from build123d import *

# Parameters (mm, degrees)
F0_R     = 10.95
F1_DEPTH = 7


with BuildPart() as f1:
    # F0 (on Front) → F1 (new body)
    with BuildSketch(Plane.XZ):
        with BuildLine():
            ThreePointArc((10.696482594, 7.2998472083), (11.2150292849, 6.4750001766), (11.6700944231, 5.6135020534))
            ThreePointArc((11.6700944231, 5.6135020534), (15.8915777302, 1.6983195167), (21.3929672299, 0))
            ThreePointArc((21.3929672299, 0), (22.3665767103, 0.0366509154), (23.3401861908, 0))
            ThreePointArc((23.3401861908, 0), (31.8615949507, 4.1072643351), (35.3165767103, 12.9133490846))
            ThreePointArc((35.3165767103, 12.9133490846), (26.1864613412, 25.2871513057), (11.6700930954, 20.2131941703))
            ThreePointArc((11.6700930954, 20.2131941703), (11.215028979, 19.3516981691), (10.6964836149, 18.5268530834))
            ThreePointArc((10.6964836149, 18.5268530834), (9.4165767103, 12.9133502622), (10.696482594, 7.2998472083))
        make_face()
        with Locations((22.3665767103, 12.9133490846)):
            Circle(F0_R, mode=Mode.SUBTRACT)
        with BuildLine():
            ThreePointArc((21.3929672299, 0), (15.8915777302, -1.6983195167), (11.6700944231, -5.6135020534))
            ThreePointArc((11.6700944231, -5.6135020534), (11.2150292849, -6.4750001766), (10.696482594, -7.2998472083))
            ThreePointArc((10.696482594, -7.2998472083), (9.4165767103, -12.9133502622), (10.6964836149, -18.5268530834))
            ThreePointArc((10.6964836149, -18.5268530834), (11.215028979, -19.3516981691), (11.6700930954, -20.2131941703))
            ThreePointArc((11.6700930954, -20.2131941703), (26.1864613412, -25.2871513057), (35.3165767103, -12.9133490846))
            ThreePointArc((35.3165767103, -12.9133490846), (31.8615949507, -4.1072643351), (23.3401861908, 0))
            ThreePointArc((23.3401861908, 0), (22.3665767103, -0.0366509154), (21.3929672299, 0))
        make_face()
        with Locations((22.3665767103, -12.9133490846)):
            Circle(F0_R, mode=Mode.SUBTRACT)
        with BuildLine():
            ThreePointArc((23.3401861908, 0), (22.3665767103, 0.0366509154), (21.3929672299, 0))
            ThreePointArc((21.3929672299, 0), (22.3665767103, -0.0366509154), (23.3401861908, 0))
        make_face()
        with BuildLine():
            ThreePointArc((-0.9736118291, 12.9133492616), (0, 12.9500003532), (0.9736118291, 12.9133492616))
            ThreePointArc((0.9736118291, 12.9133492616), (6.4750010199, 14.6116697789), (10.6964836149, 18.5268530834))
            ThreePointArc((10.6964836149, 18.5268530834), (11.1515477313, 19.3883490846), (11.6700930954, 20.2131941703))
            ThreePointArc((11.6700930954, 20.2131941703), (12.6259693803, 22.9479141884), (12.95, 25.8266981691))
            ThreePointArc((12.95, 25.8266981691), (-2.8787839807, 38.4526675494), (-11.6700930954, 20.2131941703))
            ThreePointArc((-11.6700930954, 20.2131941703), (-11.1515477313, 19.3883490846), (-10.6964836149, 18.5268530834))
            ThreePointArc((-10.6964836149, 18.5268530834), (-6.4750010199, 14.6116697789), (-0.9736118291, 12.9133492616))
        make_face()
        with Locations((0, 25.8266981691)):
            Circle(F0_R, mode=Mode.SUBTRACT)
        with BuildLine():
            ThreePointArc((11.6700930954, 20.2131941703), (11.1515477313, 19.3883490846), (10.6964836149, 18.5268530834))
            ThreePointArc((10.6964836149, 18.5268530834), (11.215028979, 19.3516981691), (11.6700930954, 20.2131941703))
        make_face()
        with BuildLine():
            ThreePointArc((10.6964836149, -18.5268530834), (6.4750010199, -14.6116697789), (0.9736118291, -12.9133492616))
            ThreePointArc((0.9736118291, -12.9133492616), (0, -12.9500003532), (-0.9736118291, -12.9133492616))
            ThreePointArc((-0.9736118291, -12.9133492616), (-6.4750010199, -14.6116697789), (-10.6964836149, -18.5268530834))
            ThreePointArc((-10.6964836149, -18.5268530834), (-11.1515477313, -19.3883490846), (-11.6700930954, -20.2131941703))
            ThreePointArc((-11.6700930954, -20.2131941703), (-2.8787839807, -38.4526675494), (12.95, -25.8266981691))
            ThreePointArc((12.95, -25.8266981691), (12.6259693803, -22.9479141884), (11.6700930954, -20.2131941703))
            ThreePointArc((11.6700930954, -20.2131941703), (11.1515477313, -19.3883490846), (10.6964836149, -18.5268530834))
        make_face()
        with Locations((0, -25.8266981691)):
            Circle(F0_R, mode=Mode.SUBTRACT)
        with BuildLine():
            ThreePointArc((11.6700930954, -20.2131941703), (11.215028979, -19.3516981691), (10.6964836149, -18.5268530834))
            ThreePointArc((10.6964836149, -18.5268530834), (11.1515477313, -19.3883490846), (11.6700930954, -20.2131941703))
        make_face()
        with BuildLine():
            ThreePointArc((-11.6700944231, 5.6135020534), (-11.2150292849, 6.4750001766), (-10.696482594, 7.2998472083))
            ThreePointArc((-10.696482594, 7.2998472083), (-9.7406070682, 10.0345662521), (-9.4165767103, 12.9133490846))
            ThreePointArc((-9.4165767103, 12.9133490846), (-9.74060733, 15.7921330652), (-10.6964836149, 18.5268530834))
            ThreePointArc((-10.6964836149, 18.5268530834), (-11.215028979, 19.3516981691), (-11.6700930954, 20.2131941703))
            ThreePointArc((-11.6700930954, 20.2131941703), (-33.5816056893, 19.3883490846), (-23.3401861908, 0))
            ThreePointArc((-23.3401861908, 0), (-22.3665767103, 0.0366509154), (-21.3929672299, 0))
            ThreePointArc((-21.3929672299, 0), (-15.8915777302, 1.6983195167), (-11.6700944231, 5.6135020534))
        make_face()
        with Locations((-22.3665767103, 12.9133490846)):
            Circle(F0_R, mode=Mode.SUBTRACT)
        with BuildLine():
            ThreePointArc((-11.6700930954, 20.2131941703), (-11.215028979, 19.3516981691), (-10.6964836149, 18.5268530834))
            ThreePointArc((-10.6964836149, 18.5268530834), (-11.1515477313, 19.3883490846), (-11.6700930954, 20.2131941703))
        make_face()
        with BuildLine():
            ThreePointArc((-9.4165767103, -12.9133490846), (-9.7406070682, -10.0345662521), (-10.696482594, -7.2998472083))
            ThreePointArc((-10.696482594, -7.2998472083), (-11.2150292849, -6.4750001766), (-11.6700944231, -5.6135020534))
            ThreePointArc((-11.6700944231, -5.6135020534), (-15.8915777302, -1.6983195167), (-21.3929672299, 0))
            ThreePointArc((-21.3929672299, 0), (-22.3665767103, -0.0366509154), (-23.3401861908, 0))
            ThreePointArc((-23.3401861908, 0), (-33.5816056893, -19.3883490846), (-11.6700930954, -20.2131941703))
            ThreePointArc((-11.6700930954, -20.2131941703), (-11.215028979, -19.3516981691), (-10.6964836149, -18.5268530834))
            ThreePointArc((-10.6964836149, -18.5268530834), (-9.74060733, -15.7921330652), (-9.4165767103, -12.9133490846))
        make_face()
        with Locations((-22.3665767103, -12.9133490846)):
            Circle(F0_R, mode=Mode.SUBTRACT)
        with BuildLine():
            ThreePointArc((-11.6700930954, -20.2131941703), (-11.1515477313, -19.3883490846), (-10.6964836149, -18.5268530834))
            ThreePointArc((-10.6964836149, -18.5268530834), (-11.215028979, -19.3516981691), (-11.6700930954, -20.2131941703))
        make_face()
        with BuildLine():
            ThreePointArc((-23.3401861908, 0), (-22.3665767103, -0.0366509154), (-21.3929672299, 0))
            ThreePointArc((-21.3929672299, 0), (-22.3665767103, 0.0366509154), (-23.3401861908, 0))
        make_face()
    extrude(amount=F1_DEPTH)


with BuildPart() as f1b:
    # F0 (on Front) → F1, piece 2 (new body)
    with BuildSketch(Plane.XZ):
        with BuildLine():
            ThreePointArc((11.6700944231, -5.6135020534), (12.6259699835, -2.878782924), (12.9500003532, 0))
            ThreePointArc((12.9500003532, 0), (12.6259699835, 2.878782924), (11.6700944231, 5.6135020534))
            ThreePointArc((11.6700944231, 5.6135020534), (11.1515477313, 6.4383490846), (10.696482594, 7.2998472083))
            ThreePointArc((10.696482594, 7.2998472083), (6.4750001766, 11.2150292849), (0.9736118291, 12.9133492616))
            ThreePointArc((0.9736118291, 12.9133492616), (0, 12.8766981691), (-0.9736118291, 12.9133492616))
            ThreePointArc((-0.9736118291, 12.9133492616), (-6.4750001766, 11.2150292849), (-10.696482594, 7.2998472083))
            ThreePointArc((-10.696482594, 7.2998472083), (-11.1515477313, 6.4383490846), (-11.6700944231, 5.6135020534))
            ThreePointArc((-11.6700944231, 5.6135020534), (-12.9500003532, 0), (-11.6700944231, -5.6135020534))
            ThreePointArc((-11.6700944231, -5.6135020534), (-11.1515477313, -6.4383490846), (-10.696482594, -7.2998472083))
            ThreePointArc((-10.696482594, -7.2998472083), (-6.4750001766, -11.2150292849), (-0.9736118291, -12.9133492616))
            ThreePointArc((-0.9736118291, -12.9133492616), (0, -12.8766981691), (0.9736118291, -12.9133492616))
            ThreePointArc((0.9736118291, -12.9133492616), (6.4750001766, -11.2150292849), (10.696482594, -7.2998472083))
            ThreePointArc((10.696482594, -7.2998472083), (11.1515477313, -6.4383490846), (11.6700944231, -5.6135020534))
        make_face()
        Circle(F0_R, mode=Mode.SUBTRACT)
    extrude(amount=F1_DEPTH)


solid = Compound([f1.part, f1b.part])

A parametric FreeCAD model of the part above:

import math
import FreeCAD as App
import Part
import Sketcher
from FreeCAD import Vector
Q = App.Units.Quantity

doc = App.newDocument("Part")
params = doc.addObject("Spreadsheet::Sheet", "Params")
for row, (alias, value) in enumerate([
    ("sketch1_diameter", "21.9 mm"),
    ("sketch1_radius", "12.95 mm"),
    ("pad1_length", "7 mm"),
    ("sketch2_diameter", "21.9 mm"),
    ("sketch2_radius", "12.95 mm"),
    ("pad2_length", "7 mm"),
], start=1):
    params.set(f"A{row}", alias)
    params.set(f"B{row}", "=" + value)
    params.setAlias(f"B{row}", alias)

body = doc.addObject("PartDesign::Body", "Body")

sketch1 = body.newObject("Sketcher::SketchObject", "Sketch")
sketch1.AttachmentSupport = (doc.getObject("XZ_Plane"), [""])
sketch1.MapMode = "FlatFace"
sketch1.addGeometry(Part.ArcOfCircle(Part.Circle(Vector(-22.4, 12.9, 0), Vector(0, 0, 1), 12.9), math.radians(34), math.radians(266)), False)
sketch1.addGeometry(Part.ArcOfCircle(Part.Circle(Vector(-22.4, -12.9, 0), Vector(0, 0, 1), 12.9), math.radians(94), math.radians(326)), False)
sketch1.addGeometry(Part.ArcOfCircle(Part.Circle(Vector(0, -25.8, 0), Vector(0, 0, 1), 12.9), math.radians(154), math.radians(360)), False)
sketch1.addGeometry(Part.ArcOfCircle(Part.Circle(Vector(0, -25.8, 0), Vector(0, 0, 1), 12.9), math.radians(0), math.radians(26)), False)
sketch1.addGeometry(Part.ArcOfCircle(Part.Circle(Vector(22.4, -12.9, 0), Vector(0, 0, 1), 12.9), math.radians(-146), math.radians(0)), False)
sketch1.addGeometry(Part.ArcOfCircle(Part.Circle(Vector(22.4, -12.9, 0), Vector(0, 0, 1), 12.9), math.radians(0), math.radians(86)), False)
sketch1.addGeometry(Part.ArcOfCircle(Part.Circle(Vector(22.4, 12.9, 0), Vector(0, 0, 1), 12.9), math.radians(-86), math.radians(0)), False)
sketch1.addGeometry(Part.ArcOfCircle(Part.Circle(Vector(22.4, 12.9, 0), Vector(0, 0, 1), 12.9), math.radians(0), math.radians(146)), False)
sketch1.addGeometry(Part.ArcOfCircle(Part.Circle(Vector(0, 25.8, 0), Vector(0, 0, 1), 12.9), math.radians(-26), math.radians(0)), False)
sketch1.addGeometry(Part.ArcOfCircle(Part.Circle(Vector(0, 25.8, 0), Vector(0, 0, 1), 12.9), math.radians(0), math.radians(206)), False)
sketch1.addGeometry(Part.Circle(Vector(-22.4, -12.9, 0), Vector(0, 0, 1), 10.9), False)
sketch1.addGeometry(Part.Circle(Vector(0, -25.8, 0), Vector(0, 0, 1), 10.9), False)
sketch1.addGeometry(Part.ArcOfCircle(Part.Circle(Vector(-22.4, -12.9, 0), Vector(0, 0, 1), 12.9), math.radians(34), math.radians(86)), False)
sketch1.addGeometry(Part.ArcOfCircle(Part.Circle(Vector(-22.4, 12.9, 0), Vector(0, 0, 1), 12.9), math.radians(-86), math.radians(-34)), False)
sketch1.addGeometry(Part.ArcOfCircle(Part.Circle(Vector(0, 0, 0), Vector(0, 0, 1), 13), math.radians(145.69), math.radians(154.31)), False)
sketch1.addGeometry(Part.ArcOfCircle(Part.Circle(Vector(-22.4, 12.9, 0), Vector(0, 0, 1), 12.9), math.radians(-26), math.radians(0)), False)
sketch1.addGeometry(Part.ArcOfCircle(Part.Circle(Vector(-22.4, 12.9, 0), Vector(0, 0, 1), 13), math.radians(0), math.radians(26)), False)
sketch1.addGeometry(Part.ArcOfCircle(Part.Circle(Vector(0, 25.8, 0), Vector(0, 0, 1), 12.9), math.radians(-146), math.radians(-94)), False)
sketch1.addGeometry(Part.ArcOfCircle(Part.Circle(Vector(0, 0, 0), Vector(0, 0, 1), 13), math.radians(85.69), math.radians(94.31)), False)
sketch1.addGeometry(Part.ArcOfCircle(Part.Circle(Vector(0, 25.8, 0), Vector(0, 0, 1), 12.9), math.radians(-86), math.radians(-34)), False)
sketch1.addGeometry(Part.ArcOfCircle(Part.Circle(Vector(22.4, 12.9, 0), Vector(0, 0, 1), 12.9), math.radians(154), math.radians(206)), False)
sketch1.addGeometry(Part.ArcOfCircle(Part.Circle(Vector(0, 0, 0), Vector(0, 0, 1), 13), math.radians(25.69), math.radians(34.31)), False)
sketch1.addGeometry(Part.ArcOfCircle(Part.Circle(Vector(22.4, 12.9, 0), Vector(0, 0, 1), 12.9), math.radians(-146), math.radians(-94)), False)
sketch1.addGeometry(Part.ArcOfCircle(Part.Circle(Vector(22.4, -12.9, 0), Vector(0, 0, 1), 12.9), math.radians(94), math.radians(146)), False)
sketch1.addGeometry(Part.ArcOfCircle(Part.Circle(Vector(0, 0, 0), Vector(0, 0, 1), 13), math.radians(-34.31), math.radians(-25.69)), False)
sketch1.addGeometry(Part.ArcOfCircle(Part.Circle(Vector(22.4, -12.9, 0), Vector(0, 0, 1), 12.9), math.radians(154), math.radians(206)), False)
sketch1.addGeometry(Part.ArcOfCircle(Part.Circle(Vector(0, -25.8, 0), Vector(0, 0, 1), 12.9), math.radians(34), math.radians(86)), False)
sketch1.addGeometry(Part.ArcOfCircle(Part.Circle(Vector(0, 0, 0), Vector(0, 0, 1), 13), math.radians(-94.31), math.radians(-85.69)), False)
sketch1.addGeometry(Part.ArcOfCircle(Part.Circle(Vector(0, -25.8, 0), Vector(0, 0, 1), 12.9), math.radians(94), math.radians(146)), False)
sketch1.addGeometry(Part.ArcOfCircle(Part.Circle(Vector(-22.4, -12.9, 0), Vector(0, 0, 1), 13), math.radians(-26), math.radians(0)), False)
sketch1.addGeometry(Part.ArcOfCircle(Part.Circle(Vector(-22.4, -12.9, 0), Vector(0, 0, 1), 12.9), math.radians(0), math.radians(26)), False)
sketch1.addGeometry(Part.ArcOfCircle(Part.Circle(Vector(0, 0, 0), Vector(0, 0, 1), 13), math.radians(-154.31), math.radians(-145.69)), False)
sketch1.addGeometry(Part.Circle(Vector(22.4, -12.9, 0), Vector(0, 0, 1), 10.9), False)
sketch1.addGeometry(Part.Circle(Vector(-22.4, 12.9, 0), Vector(0, 0, 1), 10.9), False)
sketch1.addGeometry(Part.Circle(Vector(22.4, 12.9, 0), Vector(0, 0, 1), 10.9), False)
sketch1.addGeometry(Part.Circle(Vector(0, 25.8, 0), Vector(0, 0, 1), 10.9), False)
sketch1.addConstraint(Sketcher.Constraint("Coincident", 0, 2, 1, 1))
sketch1.addConstraint(Sketcher.Constraint("Coincident", 1, 2, 2, 1))
sketch1.addConstraint(Sketcher.Constraint("Tangent", 2, 2, 3, 1))
sketch1.addConstraint(Sketcher.Constraint("Coincident", 3, 2, 4, 1))
sketch1.addConstraint(Sketcher.Constraint("Tangent", 4, 2, 5, 1))
sketch1.addConstraint(Sketcher.Constraint("Coincident", 5, 2, 6, 1))
sketch1.addConstraint(Sketcher.Constraint("Tangent", 6, 2, 7, 1))
sketch1.addConstraint(Sketcher.Constraint("Coincident", 7, 2, 8, 1))
sketch1.addConstraint(Sketcher.Constraint("Tangent", 8, 2, 9, 1))
sketch1.addConstraint(Sketcher.Constraint("Coincident", 9, 2, 0, 1))
sketch1.addConstraint(Sketcher.Constraint("Coincident", 12, 2, 13, 1))
sketch1.addConstraint(Sketcher.Constraint("Coincident", 13, 2, 14, 2))
sketch1.addConstraint(Sketcher.Constraint("Coincident", 14, 1, 15, 1))
sketch1.addConstraint(Sketcher.Constraint("Tangent", 15, 2, 16, 1))
sketch1.addConstraint(Sketcher.Constraint("Coincident", 16, 2, 17, 1))
sketch1.addConstraint(Sketcher.Constraint("Coincident", 17, 2, 18, 2))
sketch1.addConstraint(Sketcher.Constraint("Coincident", 18, 1, 19, 1))
sketch1.addConstraint(Sketcher.Constraint("Coincident", 19, 2, 20, 1))
sketch1.addConstraint(Sketcher.Constraint("Coincident", 20, 2, 21, 2))
sketch1.addConstraint(Sketcher.Constraint("Coincident", 21, 1, 22, 1))
sketch1.addConstraint(Sketcher.Constraint("Coincident", 22, 2, 23, 1))
sketch1.addConstraint(Sketcher.Constraint("Coincident", 23, 2, 24, 2))
sketch1.addConstraint(Sketcher.Constraint("Coincident", 24, 1, 25, 1))
sketch1.addConstraint(Sketcher.Constraint("Coincident", 25, 2, 26, 1))
sketch1.addConstraint(Sketcher.Constraint("Coincident", 26, 2, 27, 2))
sketch1.addConstraint(Sketcher.Constraint("Coincident", 27, 1, 28, 1))
sketch1.addConstraint(Sketcher.Constraint("Coincident", 28, 2, 29, 1))
sketch1.addConstraint(Sketcher.Constraint("Tangent", 29, 2, 30, 1))
sketch1.addConstraint(Sketcher.Constraint("Coincident", 30, 2, 31, 2))
sketch1.addConstraint(Sketcher.Constraint("Coincident", 31, 1, 12, 1))
sketch1.addConstraint(Sketcher.Constraint("Coincident", 14, 3, -1, 1))
sketch1.addConstraint(Sketcher.Constraint("Coincident", 18, 3, -1, 1))
sketch1.addConstraint(Sketcher.Constraint("Coincident", 21, 3, -1, 1))
sketch1.addConstraint(Sketcher.Constraint("Coincident", 24, 3, -1, 1))
sketch1.addConstraint(Sketcher.Constraint("Coincident", 27, 3, -1, 1))
sketch1.addConstraint(Sketcher.Constraint("Coincident", 31, 3, -1, 1))
sketch1.addConstraint(Sketcher.Constraint("Coincident", 10, 3, 1, 3))
sketch1.addConstraint(Sketcher.Constraint("Coincident", 11, 3, 2, 3))
sketch1.addConstraint(Sketcher.Constraint("Coincident", 12, 3, 1, 3))
sketch1.addConstraint(Sketcher.Constraint("Coincident", 13, 3, 0, 3))
sketch1.addConstraint(Sketcher.Constraint("Coincident", 15, 3, 0, 3))
sketch1.addConstraint(Sketcher.Constraint("Coincident", 17, 3, 8, 3))
sketch1.addConstraint(Sketcher.Constraint("Coincident", 19, 3, 8, 3))
sketch1.addConstraint(Sketcher.Constraint("Coincident", 20, 3, 6, 3))
sketch1.addConstraint(Sketcher.Constraint("Coincident", 22, 3, 6, 3))
sketch1.addConstraint(Sketcher.Constraint("Coincident", 23, 3, 4, 3))
sketch1.addConstraint(Sketcher.Constraint("Coincident", 25, 3, 4, 3))
sketch1.addConstraint(Sketcher.Constraint("Coincident", 26, 3, 2, 3))
sketch1.addConstraint(Sketcher.Constraint("Coincident", 28, 3, 2, 3))
sketch1.addConstraint(Sketcher.Constraint("Coincident", 29, 3, 1, 3))
sketch1.addConstraint(Sketcher.Constraint("Coincident", 32, 3, 4, 3))
sketch1.addConstraint(Sketcher.Constraint("Coincident", 33, 3, 0, 3))
sketch1.addConstraint(Sketcher.Constraint("Coincident", 34, 3, 6, 3))
sketch1.addConstraint(Sketcher.Constraint("Coincident", 35, 3, 8, 3))
sketch1.addConstraint(Sketcher.Constraint("Equal", 0, 1))
sketch1.addConstraint(Sketcher.Constraint("Equal", 1, 2))
sketch1.addConstraint(Sketcher.Constraint("Equal", 2, 3))
sketch1.addConstraint(Sketcher.Constraint("Equal", 3, 4))
sketch1.addConstraint(Sketcher.Constraint("Equal", 4, 5))
sketch1.addConstraint(Sketcher.Constraint("Equal", 5, 6))
sketch1.addConstraint(Sketcher.Constraint("Equal", 6, 7))
sketch1.addConstraint(Sketcher.Constraint("Equal", 7, 8))
sketch1.addConstraint(Sketcher.Constraint("Equal", 8, 9))
sketch1.addConstraint(Sketcher.Constraint("Equal", 10, 11))
sketch1.addConstraint(Sketcher.Constraint("Equal", 9, 12))
sketch1.addConstraint(Sketcher.Constraint("Equal", 12, 13))
sketch1.addConstraint(Sketcher.Constraint("Equal", 13, 14))
sketch1.addConstraint(Sketcher.Constraint("Equal", 14, 15))
sketch1.addConstraint(Sketcher.Constraint("Equal", 15, 16))
sketch1.addConstraint(Sketcher.Constraint("Equal", 16, 17))
sketch1.addConstraint(Sketcher.Constraint("Equal", 17, 18))
sketch1.addConstraint(Sketcher.Constraint("Equal", 18, 19))
sketch1.addConstraint(Sketcher.Constraint("Equal", 19, 20))
sketch1.addConstraint(Sketcher.Constraint("Equal", 20, 21))
sketch1.addConstraint(Sketcher.Constraint("Equal", 21, 22))
sketch1.addConstraint(Sketcher.Constraint("Equal", 22, 23))
sketch1.addConstraint(Sketcher.Constraint("Equal", 23, 24))
sketch1.addConstraint(Sketcher.Constraint("Equal", 24, 25))
sketch1.addConstraint(Sketcher.Constraint("Equal", 25, 26))
sketch1.addConstraint(Sketcher.Constraint("Equal", 26, 27))
sketch1.addConstraint(Sketcher.Constraint("Equal", 27, 28))
sketch1.addConstraint(Sketcher.Constraint("Equal", 28, 29))
sketch1.addConstraint(Sketcher.Constraint("Equal", 29, 30))
sketch1.addConstraint(Sketcher.Constraint("Equal", 30, 31))
sketch1.addConstraint(Sketcher.Constraint("Equal", 11, 32))
sketch1.addConstraint(Sketcher.Constraint("Equal", 32, 33))
sketch1.addConstraint(Sketcher.Constraint("Equal", 33, 34))
sketch1.addConstraint(Sketcher.Constraint("Equal", 34, 35))
sketch1.addConstraint(Sketcher.Constraint("Symmetric", 0, 3, 4, 3, -1, 1))
sketch1.addConstraint(Sketcher.Constraint("Symmetric", 1, 3, 6, 3, -1, 1))
sketch1.addConstraint(Sketcher.Constraint("Symmetric", 2, 3, 8, 3, -1, 1))
sketch1.addConstraint(Sketcher.Constraint("Symmetric", 1, 3, 4, 3, -2))
sketch1.addConstraint(Sketcher.Constraint("Symmetric", 2, 2, 8, 2, -1))
sketch1.addConstraint(Sketcher.Constraint("Horizontal", 28, 3, 2, 2))
sketch1.addConstraint(Sketcher.Constraint("Horizontal", 32, 3, 4, 2))
sketch1.addConstraint(Sketcher.Constraint("Horizontal", 34, 3, 6, 2))
sketch1.addConstraint(Sketcher.Constraint("Horizontal", 6, 2, 15, 2))
sketch1.addConstraint(Sketcher.Constraint("Horizontal", 15, 2, 17, 2))
sketch1.addConstraint(Sketcher.Constraint("Horizontal", 27, 1, 29, 2))
sketch1.addConstraint(Sketcher.Constraint("Diameter", 10, Q("21.9 mm")))
sketch1.addConstraint(Sketcher.Constraint("Radius", 0, Q("12.95 mm")))
sketch1.addConstraint(Sketcher.Constraint("DistanceY", 2, 3, -1, 1, Q("25.826698 mm")))
sketch1.addConstraint(Sketcher.Constraint("DistanceX", 0, 3, -1, 1, Q("22.366577 mm")))
sketch1.setExpression("Constraints[99]", "Params.sketch1_diameter")
sketch1.setExpression("Constraints[100]", "Params.sketch1_radius")
pad1 = body.newObject("PartDesign::Pad", "Pad")
pad1.Profile = sketch1
pad1.setExpression("Length", "Params.pad1_length")
body2 = doc.addObject("PartDesign::Body", "Body001")

sketch2 = body2.newObject("Sketcher::SketchObject", "Sketch001")
sketch2.AttachmentSupport = (doc.getObject("XZ_Plane001"), [""])
sketch2.MapMode = "FlatFace"
sketch2.addGeometry(Part.ArcOfCircle(Part.Circle(Vector(0, 0, 0), Vector(0, 0, 1), 13), math.radians(-26), math.radians(0)), False)
sketch2.addGeometry(Part.ArcOfCircle(Part.Circle(Vector(0, 0, 0), Vector(0, 0, 1), 13), math.radians(0), math.radians(26)), False)
sketch2.addGeometry(Part.ArcOfCircle(Part.Circle(Vector(22.4, 12.9, 0), Vector(0, 0, 1), 12.9), math.radians(-154.31), math.radians(-145.69)), False)
sketch2.addGeometry(Part.ArcOfCircle(Part.Circle(Vector(0, 0, 0), Vector(0, 0, 1), 13), math.radians(34), math.radians(86)), False)
sketch2.addGeometry(Part.ArcOfCircle(Part.Circle(Vector(0, 25.8, 0), Vector(0, 0, 1), 13), math.radians(-94.31), math.radians(-85.69)), False)
sketch2.addGeometry(Part.ArcOfCircle(Part.Circle(Vector(0, 0, 0), Vector(0, 0, 1), 13), math.radians(94), math.radians(146)), False)
sketch2.addGeometry(Part.ArcOfCircle(Part.Circle(Vector(-22.4, 12.9, 0), Vector(0, 0, 1), 12.9), math.radians(-34.31), math.radians(-25.69)), False)
sketch2.addGeometry(Part.ArcOfCircle(Part.Circle(Vector(0, 0, 0), Vector(0, 0, 1), 13), math.radians(154), math.radians(206)), False)
sketch2.addGeometry(Part.ArcOfCircle(Part.Circle(Vector(-22.4, -12.9, 0), Vector(0, 0, 1), 12.9), math.radians(25.69), math.radians(34.31)), False)
sketch2.addGeometry(Part.ArcOfCircle(Part.Circle(Vector(0, 0, 0), Vector(0, 0, 1), 13), math.radians(-146), math.radians(-94)), False)
sketch2.addGeometry(Part.ArcOfCircle(Part.Circle(Vector(0, -25.8, 0), Vector(0, 0, 1), 13), math.radians(85.69), math.radians(94.31)), False)
sketch2.addGeometry(Part.ArcOfCircle(Part.Circle(Vector(0, 0, 0), Vector(0, 0, 1), 13), math.radians(-86), math.radians(-34)), False)
sketch2.addGeometry(Part.ArcOfCircle(Part.Circle(Vector(22.4, -12.9, 0), Vector(0, 0, 1), 12.9), math.radians(145.69), math.radians(154.31)), False)
sketch2.addGeometry(Part.Circle(Vector(0, 0, 0), Vector(0, 0, 1), 10.9), False)
sketch2.addConstraint(Sketcher.Constraint("Tangent", 0, 2, 1, 1))
sketch2.addConstraint(Sketcher.Constraint("Coincident", 1, 2, 2, 2))
sketch2.addConstraint(Sketcher.Constraint("Coincident", 2, 1, 3, 1))
sketch2.addConstraint(Sketcher.Constraint("Coincident", 3, 2, 4, 2))
sketch2.addConstraint(Sketcher.Constraint("Coincident", 4, 1, 5, 1))
sketch2.addConstraint(Sketcher.Constraint("Coincident", 5, 2, 6, 2))
sketch2.addConstraint(Sketcher.Constraint("Coincident", 6, 1, 7, 1))
sketch2.addConstraint(Sketcher.Constraint("Coincident", 7, 2, 8, 2))
sketch2.addConstraint(Sketcher.Constraint("Coincident", 8, 1, 9, 1))
sketch2.addConstraint(Sketcher.Constraint("Coincident", 9, 2, 10, 2))
sketch2.addConstraint(Sketcher.Constraint("Coincident", 10, 1, 11, 1))
sketch2.addConstraint(Sketcher.Constraint("Coincident", 11, 2, 12, 2))
sketch2.addConstraint(Sketcher.Constraint("Coincident", 12, 1, 0, 1))
sketch2.addConstraint(Sketcher.Constraint("Coincident", 0, 3, -1, 1))
sketch2.addConstraint(Sketcher.Constraint("Coincident", 3, 3, -1, 1))
sketch2.addConstraint(Sketcher.Constraint("Coincident", 5, 3, -1, 1))
sketch2.addConstraint(Sketcher.Constraint("Coincident", 7, 3, -1, 1))
sketch2.addConstraint(Sketcher.Constraint("Coincident", 9, 3, -1, 1))
sketch2.addConstraint(Sketcher.Constraint("Coincident", 11, 3, -1, 1))
sketch2.addConstraint(Sketcher.Constraint("Coincident", 13, 3, -1, 1))
sketch2.addConstraint(Sketcher.Constraint("Equal", 0, 1))
sketch2.addConstraint(Sketcher.Constraint("Equal", 1, 2))
sketch2.addConstraint(Sketcher.Constraint("Equal", 2, 3))
sketch2.addConstraint(Sketcher.Constraint("Equal", 3, 4))
sketch2.addConstraint(Sketcher.Constraint("Equal", 4, 5))
sketch2.addConstraint(Sketcher.Constraint("Equal", 5, 6))
sketch2.addConstraint(Sketcher.Constraint("Equal", 6, 7))
sketch2.addConstraint(Sketcher.Constraint("Equal", 7, 8))
sketch2.addConstraint(Sketcher.Constraint("Equal", 8, 9))
sketch2.addConstraint(Sketcher.Constraint("Equal", 9, 10))
sketch2.addConstraint(Sketcher.Constraint("Equal", 10, 11))
sketch2.addConstraint(Sketcher.Constraint("Equal", 11, 12))
sketch2.addConstraint(Sketcher.Constraint("Symmetric", 2, 3, 8, 3, -1, 1))
sketch2.addConstraint(Sketcher.Constraint("Symmetric", 4, 3, 10, 3, -1, 1))
sketch2.addConstraint(Sketcher.Constraint("Symmetric", 6, 3, 12, 3, -1, 1))
sketch2.addConstraint(Sketcher.Constraint("Symmetric", 2, 3, 6, 3, -2))
sketch2.addConstraint(Sketcher.Constraint("PointOnObject", 4, 3, -2))
sketch2.addConstraint(Sketcher.Constraint("PointOnObject", 0, 2, -1))
sketch2.addConstraint(Sketcher.Constraint("Horizontal", 6, 3, 3, 2))
sketch2.addConstraint(Sketcher.Constraint("Diameter", 13, Q("21.9 mm")))
sketch2.addConstraint(Sketcher.Constraint("Radius", 0, Q("12.95 mm")))
sketch2.addConstraint(Sketcher.Constraint("DistanceY", -1, 1, 4, 3, Q("25.826698 mm")))
sketch2.addConstraint(Sketcher.Constraint("DistanceY", 2, 1, 2, 3, Q("5.613502 mm")))
sketch2.setExpression("Constraints[39]", "Params.sketch2_diameter")
sketch2.setExpression("Constraints[40]", "Params.sketch2_radius")
pad2 = body2.newObject("PartDesign::Pad", "Pad001")
pad2.Profile = sketch2
pad2.setExpression("Length", "Params.pad2_length")

doc.recompute()
